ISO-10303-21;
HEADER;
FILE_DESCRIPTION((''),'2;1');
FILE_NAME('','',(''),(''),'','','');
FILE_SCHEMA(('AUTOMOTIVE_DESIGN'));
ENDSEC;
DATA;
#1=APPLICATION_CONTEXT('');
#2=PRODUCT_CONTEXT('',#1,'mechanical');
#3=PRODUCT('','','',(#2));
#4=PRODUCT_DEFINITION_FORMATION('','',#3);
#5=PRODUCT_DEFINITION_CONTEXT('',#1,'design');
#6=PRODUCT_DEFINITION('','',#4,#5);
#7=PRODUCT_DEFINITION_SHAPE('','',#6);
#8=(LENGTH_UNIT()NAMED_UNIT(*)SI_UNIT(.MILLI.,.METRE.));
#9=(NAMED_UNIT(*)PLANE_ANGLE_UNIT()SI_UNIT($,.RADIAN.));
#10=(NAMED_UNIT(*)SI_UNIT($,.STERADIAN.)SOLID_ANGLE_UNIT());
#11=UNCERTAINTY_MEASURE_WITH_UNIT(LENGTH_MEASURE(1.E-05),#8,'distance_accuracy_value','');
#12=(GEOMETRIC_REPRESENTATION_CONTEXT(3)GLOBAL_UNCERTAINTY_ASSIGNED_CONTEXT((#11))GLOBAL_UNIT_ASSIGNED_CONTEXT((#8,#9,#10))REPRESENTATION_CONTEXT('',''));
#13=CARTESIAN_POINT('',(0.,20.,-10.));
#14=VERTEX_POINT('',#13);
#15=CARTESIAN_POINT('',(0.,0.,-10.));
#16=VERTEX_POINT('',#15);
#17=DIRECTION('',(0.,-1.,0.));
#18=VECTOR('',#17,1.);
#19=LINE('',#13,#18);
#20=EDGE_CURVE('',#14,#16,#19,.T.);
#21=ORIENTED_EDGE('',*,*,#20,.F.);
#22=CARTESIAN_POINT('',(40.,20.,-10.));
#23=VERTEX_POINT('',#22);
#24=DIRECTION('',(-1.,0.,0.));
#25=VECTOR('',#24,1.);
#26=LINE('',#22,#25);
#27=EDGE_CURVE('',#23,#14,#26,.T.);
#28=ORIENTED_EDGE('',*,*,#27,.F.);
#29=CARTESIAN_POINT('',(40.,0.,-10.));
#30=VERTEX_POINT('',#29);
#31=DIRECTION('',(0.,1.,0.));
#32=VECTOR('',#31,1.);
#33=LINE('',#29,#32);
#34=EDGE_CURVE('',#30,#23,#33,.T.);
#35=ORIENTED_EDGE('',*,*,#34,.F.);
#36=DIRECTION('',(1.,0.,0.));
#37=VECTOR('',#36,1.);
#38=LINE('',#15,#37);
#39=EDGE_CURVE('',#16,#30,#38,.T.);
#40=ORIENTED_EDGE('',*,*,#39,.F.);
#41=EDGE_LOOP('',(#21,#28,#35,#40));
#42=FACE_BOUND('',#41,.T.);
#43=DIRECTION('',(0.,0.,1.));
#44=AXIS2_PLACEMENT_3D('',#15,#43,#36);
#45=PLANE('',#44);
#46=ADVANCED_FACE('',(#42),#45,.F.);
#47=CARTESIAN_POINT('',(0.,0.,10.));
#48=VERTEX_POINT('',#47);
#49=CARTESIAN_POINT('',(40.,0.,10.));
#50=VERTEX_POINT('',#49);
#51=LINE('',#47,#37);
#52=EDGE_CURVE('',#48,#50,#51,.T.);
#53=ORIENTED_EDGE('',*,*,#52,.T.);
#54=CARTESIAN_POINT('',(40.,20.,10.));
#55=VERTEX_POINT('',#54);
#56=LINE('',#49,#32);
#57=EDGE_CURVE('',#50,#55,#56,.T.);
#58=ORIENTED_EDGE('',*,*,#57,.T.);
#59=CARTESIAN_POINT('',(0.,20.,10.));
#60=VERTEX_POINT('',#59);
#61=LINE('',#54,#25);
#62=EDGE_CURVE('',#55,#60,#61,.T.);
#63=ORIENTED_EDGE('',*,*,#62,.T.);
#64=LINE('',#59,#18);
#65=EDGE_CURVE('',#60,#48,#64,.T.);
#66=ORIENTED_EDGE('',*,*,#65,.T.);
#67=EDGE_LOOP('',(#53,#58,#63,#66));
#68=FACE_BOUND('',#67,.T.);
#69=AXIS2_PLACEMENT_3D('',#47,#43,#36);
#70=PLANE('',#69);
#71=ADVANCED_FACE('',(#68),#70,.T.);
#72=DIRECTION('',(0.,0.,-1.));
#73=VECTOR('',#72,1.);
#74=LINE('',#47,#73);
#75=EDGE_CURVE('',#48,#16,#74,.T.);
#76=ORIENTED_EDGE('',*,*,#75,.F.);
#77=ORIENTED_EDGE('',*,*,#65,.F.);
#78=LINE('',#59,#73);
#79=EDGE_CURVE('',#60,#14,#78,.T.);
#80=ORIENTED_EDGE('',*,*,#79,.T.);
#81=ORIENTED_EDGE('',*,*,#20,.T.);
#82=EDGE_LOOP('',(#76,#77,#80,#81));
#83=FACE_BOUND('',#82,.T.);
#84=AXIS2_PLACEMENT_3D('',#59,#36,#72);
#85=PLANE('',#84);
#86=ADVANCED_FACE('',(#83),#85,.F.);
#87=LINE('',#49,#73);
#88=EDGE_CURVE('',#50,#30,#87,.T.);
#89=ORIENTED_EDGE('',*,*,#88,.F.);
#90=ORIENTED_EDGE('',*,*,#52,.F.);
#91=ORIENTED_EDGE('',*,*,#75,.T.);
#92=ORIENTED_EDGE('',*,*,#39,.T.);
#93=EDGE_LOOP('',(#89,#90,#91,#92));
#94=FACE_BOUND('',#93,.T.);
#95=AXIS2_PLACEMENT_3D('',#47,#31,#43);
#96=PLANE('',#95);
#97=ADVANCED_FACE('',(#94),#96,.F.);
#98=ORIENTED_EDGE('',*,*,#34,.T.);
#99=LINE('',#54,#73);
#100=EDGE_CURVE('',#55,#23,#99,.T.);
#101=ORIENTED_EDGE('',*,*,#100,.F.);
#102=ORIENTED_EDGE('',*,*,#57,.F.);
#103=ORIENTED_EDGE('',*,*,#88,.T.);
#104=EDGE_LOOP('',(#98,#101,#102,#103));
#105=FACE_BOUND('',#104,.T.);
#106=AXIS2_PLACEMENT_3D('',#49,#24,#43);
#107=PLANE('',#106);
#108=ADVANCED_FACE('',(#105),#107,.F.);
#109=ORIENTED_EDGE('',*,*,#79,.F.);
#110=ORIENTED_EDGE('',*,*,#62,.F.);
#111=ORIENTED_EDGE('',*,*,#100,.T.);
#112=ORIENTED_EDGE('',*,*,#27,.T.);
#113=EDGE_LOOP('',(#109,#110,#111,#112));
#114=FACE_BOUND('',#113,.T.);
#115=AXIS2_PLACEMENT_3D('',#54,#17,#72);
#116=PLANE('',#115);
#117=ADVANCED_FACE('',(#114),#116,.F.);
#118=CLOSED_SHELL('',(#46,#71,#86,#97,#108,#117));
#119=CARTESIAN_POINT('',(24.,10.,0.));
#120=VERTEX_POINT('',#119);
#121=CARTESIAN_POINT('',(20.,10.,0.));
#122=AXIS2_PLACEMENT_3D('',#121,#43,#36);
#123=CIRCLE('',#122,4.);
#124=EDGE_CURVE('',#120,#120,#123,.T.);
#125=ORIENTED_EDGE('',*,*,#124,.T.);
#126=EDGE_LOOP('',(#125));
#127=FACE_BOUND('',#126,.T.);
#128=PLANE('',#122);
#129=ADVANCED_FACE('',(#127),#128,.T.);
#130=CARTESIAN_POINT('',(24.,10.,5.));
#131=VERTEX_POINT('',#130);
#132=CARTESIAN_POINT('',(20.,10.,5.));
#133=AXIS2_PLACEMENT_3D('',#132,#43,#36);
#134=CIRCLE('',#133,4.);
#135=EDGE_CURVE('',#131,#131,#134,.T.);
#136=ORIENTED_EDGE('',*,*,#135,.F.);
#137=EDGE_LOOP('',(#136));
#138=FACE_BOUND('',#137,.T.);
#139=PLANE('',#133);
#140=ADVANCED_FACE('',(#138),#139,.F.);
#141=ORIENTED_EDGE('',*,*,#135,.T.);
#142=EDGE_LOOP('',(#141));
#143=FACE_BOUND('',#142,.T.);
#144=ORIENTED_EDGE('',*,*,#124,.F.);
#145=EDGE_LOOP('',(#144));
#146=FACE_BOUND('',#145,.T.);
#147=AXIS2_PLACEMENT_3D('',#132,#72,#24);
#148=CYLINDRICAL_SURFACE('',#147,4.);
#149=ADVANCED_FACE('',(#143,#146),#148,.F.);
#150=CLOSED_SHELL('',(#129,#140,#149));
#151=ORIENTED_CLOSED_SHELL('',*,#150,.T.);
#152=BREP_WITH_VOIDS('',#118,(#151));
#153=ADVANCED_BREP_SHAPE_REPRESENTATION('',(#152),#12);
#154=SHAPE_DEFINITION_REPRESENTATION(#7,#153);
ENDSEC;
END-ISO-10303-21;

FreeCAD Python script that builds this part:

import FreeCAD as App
import Part
import Sketcher
Q = App.Units.Quantity

doc = App.newDocument("Part")
body = doc.addObject("PartDesign::Body", "Body")

# Sketch on XY plane
sketch1 = body.newObject("Sketcher::SketchObject", "Sketch")
sketch1.AttachmentSupport = (doc.getObject("XY_Plane"), [""])
sketch1.MapMode = "FlatFace"
sketch1.addGeometry([
    Part.LineSegment(App.Vector(0, 20, 0), App.Vector(0, 0, 0)),
    Part.LineSegment(App.Vector(0, 0, 0), App.Vector(40, 0, 0)),
    Part.LineSegment(App.Vector(40, 0, 0), App.Vector(40, 20, 0)),
    Part.LineSegment(App.Vector(40, 20, 0), App.Vector(0, 20, 0)),
], False)
sketch1.addConstraint([
    Sketcher.Constraint("Coincident", 0, 2, 1, 1),
    Sketcher.Constraint("Coincident", 1, 2, 2, 1),
    Sketcher.Constraint("Coincident", 2, 2, 3, 1),
    Sketcher.Constraint("Coincident", 3, 2, 0, 1),
    Sketcher.Constraint("Vertical", 0),
    Sketcher.Constraint("Horizontal", 1),
    Sketcher.Constraint("Vertical", 2),
    Sketcher.Constraint("Horizontal", 3),
    Sketcher.Constraint("Coincident", 0, 2, -1, 1),
    Sketcher.Constraint("DistanceX", 1, 1, 1, 2, Q("40 mm")),
    Sketcher.Constraint("DistanceY", 0, 2, 0, 1, Q("20 mm")),
])
pad1 = body.newObject("PartDesign::Pad", "Pad")
pad1.Profile = sketch1
pad1.Length = 20
pad1.Midplane = True

# Sketch on XY plane
sketch2 = body.newObject("Sketcher::SketchObject", "Sketch001")
sketch2.AttachmentSupport = (doc.getObject("XY_Plane"), [""])
sketch2.MapMode = "FlatFace"
sketch2.addGeometry(Part.Circle(App.Vector(20, 10, 0), App.Vector(0, 0, 1), 4), False)
sketch2.addConstraint([
    Sketcher.Constraint("Diameter", 0, Q("8 mm")),
    Sketcher.Constraint("DistanceX", -1, 1, 0, 3, Q("20 mm")),
    Sketcher.Constraint("DistanceY", -1, 1, 0, 3, Q("10 mm")),
])
pocket1 = body.newObject("PartDesign::Pocket", "Pocket")
pocket1.Profile = sketch2
pocket1.Length = 5
pocket1.Reversed = True

doc.recompute()
